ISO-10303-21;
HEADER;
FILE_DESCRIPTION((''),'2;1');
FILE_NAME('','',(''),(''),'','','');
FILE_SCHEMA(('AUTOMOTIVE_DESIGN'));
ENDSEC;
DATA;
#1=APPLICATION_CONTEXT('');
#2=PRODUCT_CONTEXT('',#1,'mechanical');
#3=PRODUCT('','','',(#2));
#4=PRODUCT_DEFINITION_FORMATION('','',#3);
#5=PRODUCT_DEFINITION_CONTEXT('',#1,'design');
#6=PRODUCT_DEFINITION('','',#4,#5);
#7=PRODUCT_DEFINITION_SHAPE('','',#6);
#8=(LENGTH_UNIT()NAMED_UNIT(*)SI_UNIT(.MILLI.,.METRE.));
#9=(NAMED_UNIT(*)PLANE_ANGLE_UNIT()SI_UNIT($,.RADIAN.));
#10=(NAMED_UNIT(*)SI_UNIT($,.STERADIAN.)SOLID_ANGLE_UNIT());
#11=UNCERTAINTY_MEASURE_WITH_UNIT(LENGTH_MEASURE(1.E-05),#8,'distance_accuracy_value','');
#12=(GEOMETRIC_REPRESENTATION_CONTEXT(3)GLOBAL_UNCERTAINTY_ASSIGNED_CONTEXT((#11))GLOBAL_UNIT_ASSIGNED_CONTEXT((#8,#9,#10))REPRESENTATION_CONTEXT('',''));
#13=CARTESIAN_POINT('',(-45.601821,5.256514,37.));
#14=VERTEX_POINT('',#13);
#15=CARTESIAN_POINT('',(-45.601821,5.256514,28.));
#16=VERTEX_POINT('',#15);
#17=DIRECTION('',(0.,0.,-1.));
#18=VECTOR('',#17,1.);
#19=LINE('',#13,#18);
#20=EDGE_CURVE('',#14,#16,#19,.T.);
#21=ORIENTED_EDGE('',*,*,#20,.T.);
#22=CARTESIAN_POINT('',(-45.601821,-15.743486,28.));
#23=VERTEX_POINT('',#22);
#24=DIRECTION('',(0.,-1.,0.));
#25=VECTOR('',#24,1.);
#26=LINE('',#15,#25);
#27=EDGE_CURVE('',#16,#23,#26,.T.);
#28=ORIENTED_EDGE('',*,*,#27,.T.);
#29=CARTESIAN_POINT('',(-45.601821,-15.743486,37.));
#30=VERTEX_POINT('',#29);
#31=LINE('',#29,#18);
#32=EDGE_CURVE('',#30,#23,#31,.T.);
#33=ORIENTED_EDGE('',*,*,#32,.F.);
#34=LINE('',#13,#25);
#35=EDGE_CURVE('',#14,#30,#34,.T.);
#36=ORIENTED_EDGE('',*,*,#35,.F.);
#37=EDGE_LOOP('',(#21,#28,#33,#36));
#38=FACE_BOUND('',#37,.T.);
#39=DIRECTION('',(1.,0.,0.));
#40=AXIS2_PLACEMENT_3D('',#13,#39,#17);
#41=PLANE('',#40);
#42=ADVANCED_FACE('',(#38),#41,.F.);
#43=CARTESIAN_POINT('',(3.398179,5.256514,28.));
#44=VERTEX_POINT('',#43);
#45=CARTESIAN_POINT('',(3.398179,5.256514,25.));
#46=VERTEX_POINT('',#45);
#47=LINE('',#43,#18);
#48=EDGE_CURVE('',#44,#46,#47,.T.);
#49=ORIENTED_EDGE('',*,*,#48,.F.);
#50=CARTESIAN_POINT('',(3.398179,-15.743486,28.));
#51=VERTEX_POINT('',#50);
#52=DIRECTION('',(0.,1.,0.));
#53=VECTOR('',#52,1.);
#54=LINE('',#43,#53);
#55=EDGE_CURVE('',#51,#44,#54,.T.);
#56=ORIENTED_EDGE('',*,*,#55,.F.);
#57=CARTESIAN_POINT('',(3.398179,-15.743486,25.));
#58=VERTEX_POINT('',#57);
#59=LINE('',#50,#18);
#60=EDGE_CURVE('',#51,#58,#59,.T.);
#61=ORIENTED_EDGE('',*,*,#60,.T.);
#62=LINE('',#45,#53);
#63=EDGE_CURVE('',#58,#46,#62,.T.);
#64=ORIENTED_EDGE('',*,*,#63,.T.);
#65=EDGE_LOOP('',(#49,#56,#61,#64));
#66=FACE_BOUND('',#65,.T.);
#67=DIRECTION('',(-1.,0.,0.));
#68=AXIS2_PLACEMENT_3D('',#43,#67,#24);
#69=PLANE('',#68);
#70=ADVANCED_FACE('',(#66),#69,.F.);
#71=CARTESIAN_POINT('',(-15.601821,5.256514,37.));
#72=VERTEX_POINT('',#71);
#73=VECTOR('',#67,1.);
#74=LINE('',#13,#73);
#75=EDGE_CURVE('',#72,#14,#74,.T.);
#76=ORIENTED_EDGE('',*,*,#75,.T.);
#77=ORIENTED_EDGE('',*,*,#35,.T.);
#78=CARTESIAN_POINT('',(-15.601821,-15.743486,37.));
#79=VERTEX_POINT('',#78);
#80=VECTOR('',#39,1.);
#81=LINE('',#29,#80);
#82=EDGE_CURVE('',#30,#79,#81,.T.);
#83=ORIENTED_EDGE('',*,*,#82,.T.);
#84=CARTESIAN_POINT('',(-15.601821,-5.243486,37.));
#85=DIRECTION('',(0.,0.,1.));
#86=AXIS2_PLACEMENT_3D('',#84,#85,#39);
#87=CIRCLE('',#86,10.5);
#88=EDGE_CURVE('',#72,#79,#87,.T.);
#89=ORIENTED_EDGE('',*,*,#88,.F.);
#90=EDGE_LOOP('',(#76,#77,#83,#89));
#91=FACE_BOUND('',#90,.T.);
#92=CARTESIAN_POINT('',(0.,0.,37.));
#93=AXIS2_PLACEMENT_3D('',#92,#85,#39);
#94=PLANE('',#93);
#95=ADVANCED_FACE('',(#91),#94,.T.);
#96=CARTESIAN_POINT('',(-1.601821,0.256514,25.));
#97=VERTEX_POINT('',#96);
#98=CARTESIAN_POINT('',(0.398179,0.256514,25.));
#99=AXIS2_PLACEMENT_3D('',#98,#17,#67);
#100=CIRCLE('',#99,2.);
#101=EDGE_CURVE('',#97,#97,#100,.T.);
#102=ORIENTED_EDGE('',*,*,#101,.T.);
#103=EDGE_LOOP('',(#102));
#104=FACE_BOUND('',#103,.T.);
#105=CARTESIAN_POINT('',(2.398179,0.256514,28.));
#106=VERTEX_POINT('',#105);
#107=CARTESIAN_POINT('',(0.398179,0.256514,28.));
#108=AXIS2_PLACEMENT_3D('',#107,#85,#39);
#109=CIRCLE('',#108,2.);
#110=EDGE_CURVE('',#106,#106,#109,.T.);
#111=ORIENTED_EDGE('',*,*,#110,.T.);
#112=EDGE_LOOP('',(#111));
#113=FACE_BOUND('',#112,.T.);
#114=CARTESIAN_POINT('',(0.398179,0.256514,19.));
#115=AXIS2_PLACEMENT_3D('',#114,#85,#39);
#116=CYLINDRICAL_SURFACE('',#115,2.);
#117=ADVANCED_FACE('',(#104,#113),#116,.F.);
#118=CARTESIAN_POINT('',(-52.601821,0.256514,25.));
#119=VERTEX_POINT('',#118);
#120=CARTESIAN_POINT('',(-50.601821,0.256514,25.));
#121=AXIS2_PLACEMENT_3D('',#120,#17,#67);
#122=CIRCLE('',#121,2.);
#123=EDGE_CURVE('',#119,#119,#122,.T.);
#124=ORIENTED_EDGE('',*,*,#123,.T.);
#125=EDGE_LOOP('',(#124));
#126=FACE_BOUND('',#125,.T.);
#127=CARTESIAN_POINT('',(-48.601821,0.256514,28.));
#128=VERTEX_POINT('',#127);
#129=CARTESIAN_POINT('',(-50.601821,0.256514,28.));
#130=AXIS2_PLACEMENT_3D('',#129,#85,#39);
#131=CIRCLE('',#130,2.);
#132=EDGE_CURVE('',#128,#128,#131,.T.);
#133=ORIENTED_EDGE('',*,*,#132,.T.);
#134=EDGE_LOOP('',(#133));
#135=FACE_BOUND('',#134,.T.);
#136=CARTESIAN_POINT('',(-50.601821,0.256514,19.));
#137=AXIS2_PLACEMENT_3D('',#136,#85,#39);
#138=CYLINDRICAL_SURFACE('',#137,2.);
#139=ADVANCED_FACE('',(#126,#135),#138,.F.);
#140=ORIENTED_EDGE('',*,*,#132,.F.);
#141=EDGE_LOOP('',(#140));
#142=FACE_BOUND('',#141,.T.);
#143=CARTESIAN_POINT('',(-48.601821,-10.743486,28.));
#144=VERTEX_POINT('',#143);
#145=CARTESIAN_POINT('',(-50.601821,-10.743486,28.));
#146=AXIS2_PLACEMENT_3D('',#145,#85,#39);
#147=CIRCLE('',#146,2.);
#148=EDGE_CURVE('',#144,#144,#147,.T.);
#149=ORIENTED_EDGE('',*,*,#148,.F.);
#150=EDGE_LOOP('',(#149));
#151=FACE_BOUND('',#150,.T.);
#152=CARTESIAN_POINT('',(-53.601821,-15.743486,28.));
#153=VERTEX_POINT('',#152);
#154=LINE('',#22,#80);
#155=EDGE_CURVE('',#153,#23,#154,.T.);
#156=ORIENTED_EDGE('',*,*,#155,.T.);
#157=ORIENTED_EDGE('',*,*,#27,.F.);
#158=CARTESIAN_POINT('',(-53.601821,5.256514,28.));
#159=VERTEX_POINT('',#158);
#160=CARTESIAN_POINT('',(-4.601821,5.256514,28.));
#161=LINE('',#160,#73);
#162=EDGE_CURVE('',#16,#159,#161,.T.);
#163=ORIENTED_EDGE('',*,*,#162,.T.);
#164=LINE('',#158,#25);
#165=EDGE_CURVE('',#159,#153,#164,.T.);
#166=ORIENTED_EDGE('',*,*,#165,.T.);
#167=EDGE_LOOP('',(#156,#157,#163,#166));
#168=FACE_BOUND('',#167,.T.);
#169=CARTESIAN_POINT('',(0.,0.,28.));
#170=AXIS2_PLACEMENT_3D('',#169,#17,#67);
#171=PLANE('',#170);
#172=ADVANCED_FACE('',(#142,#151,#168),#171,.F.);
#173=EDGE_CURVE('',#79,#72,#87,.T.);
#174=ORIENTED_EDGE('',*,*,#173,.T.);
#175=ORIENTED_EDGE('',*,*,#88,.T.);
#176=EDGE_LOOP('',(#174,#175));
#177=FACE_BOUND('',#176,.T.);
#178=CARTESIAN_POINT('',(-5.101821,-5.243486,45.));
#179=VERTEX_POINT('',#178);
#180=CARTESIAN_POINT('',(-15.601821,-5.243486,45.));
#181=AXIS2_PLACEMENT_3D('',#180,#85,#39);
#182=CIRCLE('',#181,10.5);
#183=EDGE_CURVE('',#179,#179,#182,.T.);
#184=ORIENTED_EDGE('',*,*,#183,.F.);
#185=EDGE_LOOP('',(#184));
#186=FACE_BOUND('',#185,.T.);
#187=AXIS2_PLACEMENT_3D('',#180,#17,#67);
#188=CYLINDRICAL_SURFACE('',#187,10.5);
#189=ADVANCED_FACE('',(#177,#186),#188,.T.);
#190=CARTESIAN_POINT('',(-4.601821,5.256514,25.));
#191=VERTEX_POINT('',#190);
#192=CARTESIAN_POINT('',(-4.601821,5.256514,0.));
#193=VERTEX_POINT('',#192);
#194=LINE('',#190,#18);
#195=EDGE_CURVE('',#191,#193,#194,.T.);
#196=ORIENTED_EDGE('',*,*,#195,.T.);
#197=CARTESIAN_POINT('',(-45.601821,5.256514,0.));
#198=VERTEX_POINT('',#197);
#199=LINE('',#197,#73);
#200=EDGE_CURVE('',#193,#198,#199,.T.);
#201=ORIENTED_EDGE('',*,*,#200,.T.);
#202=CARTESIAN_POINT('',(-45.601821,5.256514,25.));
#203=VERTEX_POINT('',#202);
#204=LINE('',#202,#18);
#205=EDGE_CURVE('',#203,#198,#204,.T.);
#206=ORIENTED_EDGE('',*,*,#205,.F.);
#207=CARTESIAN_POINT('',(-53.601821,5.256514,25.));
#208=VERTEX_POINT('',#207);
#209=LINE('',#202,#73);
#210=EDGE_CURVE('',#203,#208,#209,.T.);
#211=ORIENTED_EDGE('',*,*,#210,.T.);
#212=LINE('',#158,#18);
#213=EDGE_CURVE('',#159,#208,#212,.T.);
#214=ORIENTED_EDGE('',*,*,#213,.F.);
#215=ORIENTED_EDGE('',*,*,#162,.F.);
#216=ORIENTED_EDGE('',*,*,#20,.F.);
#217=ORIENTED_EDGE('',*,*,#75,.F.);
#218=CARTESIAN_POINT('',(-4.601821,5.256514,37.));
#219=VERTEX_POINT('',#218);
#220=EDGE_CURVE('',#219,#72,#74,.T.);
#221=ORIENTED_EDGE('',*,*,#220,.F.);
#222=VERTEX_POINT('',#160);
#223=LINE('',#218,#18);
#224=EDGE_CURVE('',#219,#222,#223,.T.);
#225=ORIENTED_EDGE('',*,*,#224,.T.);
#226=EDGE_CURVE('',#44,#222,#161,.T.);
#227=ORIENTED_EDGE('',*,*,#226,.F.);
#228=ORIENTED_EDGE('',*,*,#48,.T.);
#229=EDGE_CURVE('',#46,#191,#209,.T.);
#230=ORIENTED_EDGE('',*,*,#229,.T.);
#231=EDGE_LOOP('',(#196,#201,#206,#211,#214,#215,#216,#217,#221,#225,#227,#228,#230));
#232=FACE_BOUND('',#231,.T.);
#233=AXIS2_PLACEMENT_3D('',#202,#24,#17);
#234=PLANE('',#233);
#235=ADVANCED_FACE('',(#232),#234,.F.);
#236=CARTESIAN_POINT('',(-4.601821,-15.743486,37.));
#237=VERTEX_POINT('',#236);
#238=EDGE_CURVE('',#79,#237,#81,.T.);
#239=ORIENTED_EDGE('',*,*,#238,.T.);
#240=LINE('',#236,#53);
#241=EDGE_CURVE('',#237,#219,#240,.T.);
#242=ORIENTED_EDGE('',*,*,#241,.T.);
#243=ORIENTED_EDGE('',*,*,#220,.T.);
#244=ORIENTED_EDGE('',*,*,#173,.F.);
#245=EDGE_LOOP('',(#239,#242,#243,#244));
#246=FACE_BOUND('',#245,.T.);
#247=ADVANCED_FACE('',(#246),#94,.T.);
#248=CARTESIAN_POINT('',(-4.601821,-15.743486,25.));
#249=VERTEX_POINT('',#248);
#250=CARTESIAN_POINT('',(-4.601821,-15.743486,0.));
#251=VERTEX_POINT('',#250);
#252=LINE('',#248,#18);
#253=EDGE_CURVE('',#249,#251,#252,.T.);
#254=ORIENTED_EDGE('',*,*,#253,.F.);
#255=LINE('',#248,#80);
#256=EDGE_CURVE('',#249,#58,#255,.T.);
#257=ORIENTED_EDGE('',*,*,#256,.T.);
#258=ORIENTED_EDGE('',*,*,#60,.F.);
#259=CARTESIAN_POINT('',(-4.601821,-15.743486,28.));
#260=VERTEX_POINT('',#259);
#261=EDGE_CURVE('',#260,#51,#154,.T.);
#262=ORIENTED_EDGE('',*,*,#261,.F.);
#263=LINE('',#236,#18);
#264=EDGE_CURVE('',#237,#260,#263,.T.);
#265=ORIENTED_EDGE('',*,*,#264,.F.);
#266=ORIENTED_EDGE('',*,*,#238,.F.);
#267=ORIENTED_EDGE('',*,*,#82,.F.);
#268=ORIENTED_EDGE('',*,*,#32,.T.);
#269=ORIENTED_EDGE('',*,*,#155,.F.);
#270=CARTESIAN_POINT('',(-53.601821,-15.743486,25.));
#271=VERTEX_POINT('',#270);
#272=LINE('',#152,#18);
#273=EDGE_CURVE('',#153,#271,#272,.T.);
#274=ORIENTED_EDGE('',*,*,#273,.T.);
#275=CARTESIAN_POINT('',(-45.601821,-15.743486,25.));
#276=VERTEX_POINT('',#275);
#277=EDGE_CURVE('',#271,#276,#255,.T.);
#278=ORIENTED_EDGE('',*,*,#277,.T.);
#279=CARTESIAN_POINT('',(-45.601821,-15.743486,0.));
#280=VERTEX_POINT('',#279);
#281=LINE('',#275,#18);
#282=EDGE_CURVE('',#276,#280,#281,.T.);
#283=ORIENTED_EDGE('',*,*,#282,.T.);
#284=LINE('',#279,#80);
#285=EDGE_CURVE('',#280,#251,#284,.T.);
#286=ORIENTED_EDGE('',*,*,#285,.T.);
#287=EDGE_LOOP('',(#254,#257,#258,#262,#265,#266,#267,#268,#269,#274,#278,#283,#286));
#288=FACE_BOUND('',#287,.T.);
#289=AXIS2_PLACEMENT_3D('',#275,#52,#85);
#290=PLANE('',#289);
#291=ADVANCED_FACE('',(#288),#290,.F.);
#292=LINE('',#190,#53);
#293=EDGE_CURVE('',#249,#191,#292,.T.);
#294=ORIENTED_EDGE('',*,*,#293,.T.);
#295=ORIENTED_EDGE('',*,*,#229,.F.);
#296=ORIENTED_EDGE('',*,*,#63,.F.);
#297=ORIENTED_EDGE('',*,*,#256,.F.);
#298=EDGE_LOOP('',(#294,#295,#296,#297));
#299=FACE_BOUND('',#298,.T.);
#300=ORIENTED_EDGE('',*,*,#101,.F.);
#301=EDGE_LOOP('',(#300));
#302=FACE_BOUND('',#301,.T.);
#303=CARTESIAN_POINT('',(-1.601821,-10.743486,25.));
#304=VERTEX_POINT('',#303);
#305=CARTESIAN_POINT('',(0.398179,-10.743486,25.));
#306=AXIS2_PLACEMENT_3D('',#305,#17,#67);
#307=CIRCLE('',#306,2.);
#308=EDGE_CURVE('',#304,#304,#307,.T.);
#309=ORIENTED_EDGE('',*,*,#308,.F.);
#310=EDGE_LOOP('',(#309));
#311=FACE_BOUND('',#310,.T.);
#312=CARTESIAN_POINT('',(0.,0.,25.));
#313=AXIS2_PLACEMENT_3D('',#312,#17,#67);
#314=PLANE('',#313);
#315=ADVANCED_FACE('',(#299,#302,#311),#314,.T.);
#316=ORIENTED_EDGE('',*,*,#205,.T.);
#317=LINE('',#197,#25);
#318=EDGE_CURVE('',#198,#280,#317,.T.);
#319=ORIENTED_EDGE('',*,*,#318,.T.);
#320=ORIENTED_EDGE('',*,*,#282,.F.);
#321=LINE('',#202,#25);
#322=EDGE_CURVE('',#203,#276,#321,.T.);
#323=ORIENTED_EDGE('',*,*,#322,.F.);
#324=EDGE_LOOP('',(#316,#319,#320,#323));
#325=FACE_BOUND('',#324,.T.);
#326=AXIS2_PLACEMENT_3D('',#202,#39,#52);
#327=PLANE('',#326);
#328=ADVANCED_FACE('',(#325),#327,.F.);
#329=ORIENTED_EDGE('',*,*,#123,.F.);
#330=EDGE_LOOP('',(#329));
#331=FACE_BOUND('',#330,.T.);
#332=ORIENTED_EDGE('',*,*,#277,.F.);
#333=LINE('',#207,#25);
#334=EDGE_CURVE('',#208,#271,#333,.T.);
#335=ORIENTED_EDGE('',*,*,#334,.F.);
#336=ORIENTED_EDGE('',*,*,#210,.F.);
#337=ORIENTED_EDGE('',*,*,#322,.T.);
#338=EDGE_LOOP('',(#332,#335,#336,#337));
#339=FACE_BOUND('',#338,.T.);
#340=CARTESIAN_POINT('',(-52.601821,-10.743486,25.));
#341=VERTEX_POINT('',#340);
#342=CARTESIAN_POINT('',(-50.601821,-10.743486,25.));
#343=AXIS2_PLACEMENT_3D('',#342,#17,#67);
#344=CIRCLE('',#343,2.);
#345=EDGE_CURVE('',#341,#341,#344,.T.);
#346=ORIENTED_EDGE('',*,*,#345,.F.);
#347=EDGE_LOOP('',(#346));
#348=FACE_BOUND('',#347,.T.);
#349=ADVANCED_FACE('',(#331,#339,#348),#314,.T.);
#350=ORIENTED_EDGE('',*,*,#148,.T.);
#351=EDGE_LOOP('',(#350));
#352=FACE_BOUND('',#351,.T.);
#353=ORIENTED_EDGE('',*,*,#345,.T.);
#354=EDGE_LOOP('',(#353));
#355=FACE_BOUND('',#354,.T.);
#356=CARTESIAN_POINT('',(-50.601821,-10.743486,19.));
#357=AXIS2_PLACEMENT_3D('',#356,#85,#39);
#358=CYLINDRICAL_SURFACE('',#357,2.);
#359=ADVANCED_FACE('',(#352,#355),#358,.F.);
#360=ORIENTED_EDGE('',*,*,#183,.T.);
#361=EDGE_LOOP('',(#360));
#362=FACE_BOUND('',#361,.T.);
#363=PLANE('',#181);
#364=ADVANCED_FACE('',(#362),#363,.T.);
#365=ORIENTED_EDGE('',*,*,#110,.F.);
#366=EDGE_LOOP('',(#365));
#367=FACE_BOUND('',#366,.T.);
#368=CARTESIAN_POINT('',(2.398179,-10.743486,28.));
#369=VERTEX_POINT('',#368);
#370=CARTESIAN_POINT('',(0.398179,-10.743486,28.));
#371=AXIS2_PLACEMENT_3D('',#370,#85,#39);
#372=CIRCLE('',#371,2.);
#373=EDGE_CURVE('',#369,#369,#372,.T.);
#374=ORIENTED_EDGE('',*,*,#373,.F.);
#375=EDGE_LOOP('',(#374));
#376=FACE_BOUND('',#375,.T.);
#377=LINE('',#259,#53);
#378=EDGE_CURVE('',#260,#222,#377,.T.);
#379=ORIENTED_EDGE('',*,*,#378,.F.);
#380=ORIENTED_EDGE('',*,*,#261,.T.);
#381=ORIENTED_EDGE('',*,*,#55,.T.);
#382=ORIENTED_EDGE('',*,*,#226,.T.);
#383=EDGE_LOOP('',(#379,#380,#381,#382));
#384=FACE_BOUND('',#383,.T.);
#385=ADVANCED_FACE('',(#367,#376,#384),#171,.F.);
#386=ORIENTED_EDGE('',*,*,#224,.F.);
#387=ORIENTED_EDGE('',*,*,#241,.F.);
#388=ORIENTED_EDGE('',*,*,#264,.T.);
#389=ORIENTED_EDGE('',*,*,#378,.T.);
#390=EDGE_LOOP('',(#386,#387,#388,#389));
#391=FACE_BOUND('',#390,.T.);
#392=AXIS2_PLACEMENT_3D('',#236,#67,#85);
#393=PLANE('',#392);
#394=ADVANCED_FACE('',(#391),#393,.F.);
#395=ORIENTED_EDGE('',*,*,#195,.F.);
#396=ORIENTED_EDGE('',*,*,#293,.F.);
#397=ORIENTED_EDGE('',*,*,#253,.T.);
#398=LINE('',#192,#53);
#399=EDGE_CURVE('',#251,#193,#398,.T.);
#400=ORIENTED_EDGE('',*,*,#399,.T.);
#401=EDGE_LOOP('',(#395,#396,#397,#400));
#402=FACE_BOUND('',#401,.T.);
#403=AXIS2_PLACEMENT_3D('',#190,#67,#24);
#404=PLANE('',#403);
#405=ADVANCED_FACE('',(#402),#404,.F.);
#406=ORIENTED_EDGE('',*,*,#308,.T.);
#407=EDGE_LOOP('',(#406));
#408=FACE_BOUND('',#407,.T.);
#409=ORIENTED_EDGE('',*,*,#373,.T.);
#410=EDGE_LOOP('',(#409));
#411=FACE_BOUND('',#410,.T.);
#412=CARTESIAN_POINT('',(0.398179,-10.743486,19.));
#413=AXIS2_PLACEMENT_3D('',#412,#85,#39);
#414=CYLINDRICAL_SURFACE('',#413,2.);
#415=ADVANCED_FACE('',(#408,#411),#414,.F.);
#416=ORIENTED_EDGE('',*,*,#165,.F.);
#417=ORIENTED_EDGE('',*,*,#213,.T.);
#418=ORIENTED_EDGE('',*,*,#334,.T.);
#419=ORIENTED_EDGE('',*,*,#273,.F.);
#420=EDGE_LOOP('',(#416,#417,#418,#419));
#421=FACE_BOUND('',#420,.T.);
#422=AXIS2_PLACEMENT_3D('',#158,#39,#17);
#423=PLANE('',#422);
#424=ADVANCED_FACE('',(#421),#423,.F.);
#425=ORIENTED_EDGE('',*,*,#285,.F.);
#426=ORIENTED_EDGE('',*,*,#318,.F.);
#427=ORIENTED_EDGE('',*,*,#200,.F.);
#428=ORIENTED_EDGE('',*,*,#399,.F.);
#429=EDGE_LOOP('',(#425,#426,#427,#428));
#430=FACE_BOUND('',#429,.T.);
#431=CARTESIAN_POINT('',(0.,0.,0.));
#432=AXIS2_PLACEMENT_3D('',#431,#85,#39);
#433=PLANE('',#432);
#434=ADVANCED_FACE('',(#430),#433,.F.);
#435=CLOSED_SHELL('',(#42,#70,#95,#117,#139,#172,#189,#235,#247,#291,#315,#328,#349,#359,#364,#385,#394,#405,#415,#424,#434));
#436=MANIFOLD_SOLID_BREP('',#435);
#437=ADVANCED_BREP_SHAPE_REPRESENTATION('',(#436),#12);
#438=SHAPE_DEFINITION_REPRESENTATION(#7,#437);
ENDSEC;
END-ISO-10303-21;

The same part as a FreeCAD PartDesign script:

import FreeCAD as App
import Part
import Sketcher

V = App.Vector
Q = App.Units.Quantity

doc = App.newDocument("Part")
body = doc.addObject("PartDesign::Body", "Body")

# Sketch on XY plane
sketch1 = body.newObject("Sketcher::SketchObject", "Sketch")
sketch1.AttachmentSupport = (doc.getObject("XY_Plane"), [""])
sketch1.MapMode = "FlatFace"
sketch1.addGeometry([
    Part.LineSegment(V(-46, 5, 0), V(-46, -16, 0)),
    Part.LineSegment(V(-46, -16, 0), V(-5, -16, 0)),
    Part.LineSegment(V(-5, -16, 0), V(-5, 5, 0)),
    Part.LineSegment(V(-5, 5, 0), V(-46, 5, 0)),
], False)
sketch1.addConstraint([
    Sketcher.Constraint("Coincident", 0, 2, 1, 1),
    Sketcher.Constraint("Coincident", 1, 2, 2, 1),
    Sketcher.Constraint("Coincident", 2, 2, 3, 1),
    Sketcher.Constraint("Coincident", 3, 2, 0, 1),
    Sketcher.Constraint("Vertical", 0),
    Sketcher.Constraint("Horizontal", 1),
    Sketcher.Constraint("Vertical", 2),
    Sketcher.Constraint("Horizontal", 3),
    Sketcher.Constraint("DistanceX", 1, 1, 1, 2, Q("41 mm")),
    Sketcher.Constraint("DistanceY", 0, 2, 0, 1, Q("21 mm")),
    Sketcher.Constraint("DistanceX", 0, 2, -1, 1, Q("45.601821 mm")),
    Sketcher.Constraint("DistanceY", 0, 2, -1, 1, Q("15.743486 mm")),
])
pad1 = body.newObject("PartDesign::Pad", "Pad")
pad1.Profile = sketch1
pad1.Length = 25

# Sketch on XY plane
sketch2 = body.newObject("Sketcher::SketchObject", "Sketch001")
sketch2.AttachmentSupport = (doc.getObject("XY_Plane"), [""])
sketch2.MapMode = "FlatFace"
sketch2.AttachmentOffset = App.Placement(V(0, 0, 25), App.Rotation())
sketch2.addGeometry([
    Part.LineSegment(V(-54, 5, 0), V(-54, -16, 0)),
    Part.LineSegment(V(-54, -16, 0), V(3, -16, 0)),
    Part.LineSegment(V(3, -16, 0), V(3, 5, 0)),
    Part.LineSegment(V(3, 5, 0), V(-54, 5, 0)),
], False)
sketch2.addConstraint([
    Sketcher.Constraint("Coincident", 0, 2, 1, 1),
    Sketcher.Constraint("Coincident", 1, 2, 2, 1),
    Sketcher.Constraint("Coincident", 2, 2, 3, 1),
    Sketcher.Constraint("Coincident", 3, 2, 0, 1),
    Sketcher.Constraint("Vertical", 0),
    Sketcher.Constraint("Horizontal", 1),
    Sketcher.Constraint("Vertical", 2),
    Sketcher.Constraint("Horizontal", 3),
    Sketcher.Constraint("DistanceX", 1, 1, 1, 2, Q("57 mm")),
    Sketcher.Constraint("DistanceY", 0, 2, 0, 1, Q("21 mm")),
    Sketcher.Constraint("DistanceX", 0, 2, -1, 1, Q("53.601821 mm")),
    Sketcher.Constraint("DistanceY", 0, 2, -1, 1, Q("15.743486 mm")),
])
pad2 = body.newObject("PartDesign::Pad", "Pad001")
pad2.Profile = sketch2
pad2.Length = 3

# Sketch on XY plane
sketch3 = body.newObject("Sketcher::SketchObject", "Sketch002")
sketch3.AttachmentSupport = (doc.getObject("XY_Plane"), [""])
sketch3.MapMode = "FlatFace"
sketch3.AttachmentOffset = App.Placement(V(0, 0, 28), App.Rotation())
sketch3.addGeometry([
    Part.LineSegment(V(-46, 5, 0), V(-46, -16, 0)),
    Part.LineSegment(V(-46, -16, 0), V(-5, -16, 0)),
    Part.LineSegment(V(-5, -16, 0), V(-5, 5, 0)),
    Part.LineSegment(V(-5, 5, 0), V(-46, 5, 0)),
], False)
sketch3.addConstraint([
    Sketcher.Constraint("Coincident", 0, 2, 1, 1),
    Sketcher.Constraint("Coincident", 1, 2, 2, 1),
    Sketcher.Constraint("Coincident", 2, 2, 3, 1),
    Sketcher.Constraint("Coincident", 3, 2, 0, 1),
    Sketcher.Constraint("Vertical", 0),
    Sketcher.Constraint("Horizontal", 1),
    Sketcher.Constraint("Vertical", 2),
    Sketcher.Constraint("Horizontal", 3),
    Sketcher.Constraint("DistanceX", 1, 1, 1, 2, Q("41 mm")),
    Sketcher.Constraint("DistanceY", 0, 2, 0, 1, Q("21 mm")),
    Sketcher.Constraint("DistanceX", 0, 2, -1, 1, Q("45.601821 mm")),
    Sketcher.Constraint("DistanceY", 0, 2, -1, 1, Q("15.743486 mm")),
])
pad3 = body.newObject("PartDesign::Pad", "Pad002")
pad3.Profile = sketch3
pad3.Length = 9

# Sketch on XY plane
sketch4 = body.newObject("Sketcher::SketchObject", "Sketch003")
sketch4.AttachmentSupport = (doc.getObject("XY_Plane"), [""])
sketch4.MapMode = "FlatFace"
sketch4.AttachmentOffset = App.Placement(V(0, 0, 28), App.Rotation())
sketch4.addGeometry([
    Part.Circle(V(-50.6, -10.7, 0), V(0, 0, 1), 2),
    Part.Circle(V(-50.6, 0.3, 0), V(0, 0, 1), 2),
], False)
sketch4.addConstraint([
    Sketcher.Constraint("Equal", 0, 1),
    Sketcher.Constraint("Vertical", 0, 3, 1, 3),
    Sketcher.Constraint("Diameter", 0, Q("4 mm")),
    Sketcher.Constraint("DistanceY", 0, 3, 1, 3, Q("11 mm")),
    Sketcher.Constraint("DistanceX", 0, 3, -1, 1, Q("50.601821 mm")),
    Sketcher.Constraint("DistanceY", 0, 3, -1, 1, Q("10.743486 mm")),
])
pocket1 = body.newObject("PartDesign::Pocket", "Pocket")
pocket1.Profile = sketch4
pocket1.Length = 9

# Sketch on XY plane
sketch5 = body.newObject("Sketcher::SketchObject", "Sketch004")
sketch5.AttachmentSupport = (doc.getObject("XY_Plane"), [""])
sketch5.MapMode = "FlatFace"
sketch5.AttachmentOffset = App.Placement(V(0, 0, 28), App.Rotation())
sketch5.addGeometry([
    Part.Circle(V(0.4, -10.7, 0), V(0, 0, 1), 2),
    Part.Circle(V(0.4, 0.3, 0), V(0, 0, 1), 2),
], False)
sketch5.addConstraint([
    Sketcher.Constraint("Equal", 0, 1),
    Sketcher.Constraint("Vertical", 0, 3, 1, 3),
    Sketcher.Constraint("Diameter", 0, Q("4 mm")),
    Sketcher.Constraint("DistanceY", 0, 3, 1, 3, Q("11 mm")),
    Sketcher.Constraint("DistanceX", -1, 1, 0, 3, Q("0.398179 mm")),
    Sketcher.Constraint("DistanceY", 0, 3, -1, 1, Q("10.743486 mm")),
])
pocket2 = body.newObject("PartDesign::Pocket", "Pocket001")
pocket2.Profile = sketch5
pocket2.Length = 9

# Sketch on XY plane
sketch6 = body.newObject("Sketcher::SketchObject", "Sketch005")
sketch6.AttachmentSupport = (doc.getObject("XY_Plane"), [""])
sketch6.MapMode = "FlatFace"
sketch6.AttachmentOffset = App.Placement(V(0, 0, 37), App.Rotation())
sketch6.addGeometry(Part.Circle(V(-16, -5, 0), V(0, 0, 1), 10), False)
sketch6.addConstraint([
    Sketcher.Constraint("Diameter", 0, Q("21 mm")),
    Sketcher.Constraint("DistanceX", 0, 3, -1, 1, Q("15.601821 mm")),
    Sketcher.Constraint("DistanceY", 0, 3, -1, 1, Q("5.243486 mm")),
])
pad4 = body.newObject("PartDesign::Pad", "Pad003")
pad4.Profile = sketch6
pad4.Length = 8

doc.recompute()
